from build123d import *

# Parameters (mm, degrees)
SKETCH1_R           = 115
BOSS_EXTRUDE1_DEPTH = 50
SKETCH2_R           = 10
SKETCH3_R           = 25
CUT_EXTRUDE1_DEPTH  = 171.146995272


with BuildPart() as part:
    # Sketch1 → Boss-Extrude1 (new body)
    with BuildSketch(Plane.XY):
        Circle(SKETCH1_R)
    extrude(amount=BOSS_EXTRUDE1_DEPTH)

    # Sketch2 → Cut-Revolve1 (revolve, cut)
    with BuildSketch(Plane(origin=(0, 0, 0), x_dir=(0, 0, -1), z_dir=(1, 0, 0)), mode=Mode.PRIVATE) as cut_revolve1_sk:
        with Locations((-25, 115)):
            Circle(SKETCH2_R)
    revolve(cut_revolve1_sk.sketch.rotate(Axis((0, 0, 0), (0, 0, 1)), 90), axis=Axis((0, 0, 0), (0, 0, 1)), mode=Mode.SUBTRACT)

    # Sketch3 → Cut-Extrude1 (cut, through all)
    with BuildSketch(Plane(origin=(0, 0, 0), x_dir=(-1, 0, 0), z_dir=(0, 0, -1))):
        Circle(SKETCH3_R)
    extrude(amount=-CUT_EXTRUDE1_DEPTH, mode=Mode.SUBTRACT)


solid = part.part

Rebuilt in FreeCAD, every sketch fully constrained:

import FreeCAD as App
import Part
import Sketcher

V = App.Vector

doc = App.newDocument("Part")
body = doc.addObject("PartDesign::Body", "Body")

sketch1 = body.newObject("Sketcher::SketchObject", "Sketch")
sketch1.AttachmentSupport = (doc.getObject("XY_Plane"), [""])
sketch1.MapMode = "FlatFace"
sketch1.addGeometry(Part.Circle(V(0, 0, 0), V(0, 0, 1), 115), False)
sketch1.addConstraint(Sketcher.Constraint("Coincident", 0, 3, -1, 1))
sketch1.addConstraint(Sketcher.Constraint("Diameter", 0, 230.0))
pad1 = body.newObject("PartDesign::Pad", "Pad")
pad1.Profile = sketch1
pad1.Length = 50

sketch2 = body.newObject("Sketcher::SketchObject", "Sketch001")
sketch2.AttachmentSupport = (doc.getObject("YZ_Plane"), [""])
sketch2.MapMode = "FlatFace"
sketch2.addGeometry(Part.Circle(V(115, 25, 0), V(0, 0, 1), 10), False)
sketch2.addConstraint(Sketcher.Constraint("Diameter", 0, 20.0))
sketch2.addConstraint(Sketcher.Constraint("DistanceX", -1, 1, 0, 3, 115.0))
sketch2.addConstraint(Sketcher.Constraint("DistanceY", -1, 1, 0, 3, 25.0))
groove = body.newObject("PartDesign::Groove", "Groove")
groove.Profile = sketch2
groove.ReferenceAxis = (sketch2, ["V_Axis"])
groove.Angle = 360

sketch3 = body.newObject("Sketcher::SketchObject", "Sketch002")
sketch3.AttachmentSupport = (doc.getObject("XY_Plane"), [""])
sketch3.MapMode = "FlatFace"
sketch3.addGeometry(Part.Circle(V(0, 0, 0), V(0, 0, 1), 25), False)
sketch3.addConstraint(Sketcher.Constraint("Coincident", 0, 3, -1, 1))
sketch3.addConstraint(Sketcher.Constraint("Diameter", 0, 50.0))
pocket1 = body.newObject("PartDesign::Pocket", "Pocket")
pocket1.Profile = sketch3
pocket1.Type = "ThroughAll"
pocket1.Reversed = True

doc.recompute()
